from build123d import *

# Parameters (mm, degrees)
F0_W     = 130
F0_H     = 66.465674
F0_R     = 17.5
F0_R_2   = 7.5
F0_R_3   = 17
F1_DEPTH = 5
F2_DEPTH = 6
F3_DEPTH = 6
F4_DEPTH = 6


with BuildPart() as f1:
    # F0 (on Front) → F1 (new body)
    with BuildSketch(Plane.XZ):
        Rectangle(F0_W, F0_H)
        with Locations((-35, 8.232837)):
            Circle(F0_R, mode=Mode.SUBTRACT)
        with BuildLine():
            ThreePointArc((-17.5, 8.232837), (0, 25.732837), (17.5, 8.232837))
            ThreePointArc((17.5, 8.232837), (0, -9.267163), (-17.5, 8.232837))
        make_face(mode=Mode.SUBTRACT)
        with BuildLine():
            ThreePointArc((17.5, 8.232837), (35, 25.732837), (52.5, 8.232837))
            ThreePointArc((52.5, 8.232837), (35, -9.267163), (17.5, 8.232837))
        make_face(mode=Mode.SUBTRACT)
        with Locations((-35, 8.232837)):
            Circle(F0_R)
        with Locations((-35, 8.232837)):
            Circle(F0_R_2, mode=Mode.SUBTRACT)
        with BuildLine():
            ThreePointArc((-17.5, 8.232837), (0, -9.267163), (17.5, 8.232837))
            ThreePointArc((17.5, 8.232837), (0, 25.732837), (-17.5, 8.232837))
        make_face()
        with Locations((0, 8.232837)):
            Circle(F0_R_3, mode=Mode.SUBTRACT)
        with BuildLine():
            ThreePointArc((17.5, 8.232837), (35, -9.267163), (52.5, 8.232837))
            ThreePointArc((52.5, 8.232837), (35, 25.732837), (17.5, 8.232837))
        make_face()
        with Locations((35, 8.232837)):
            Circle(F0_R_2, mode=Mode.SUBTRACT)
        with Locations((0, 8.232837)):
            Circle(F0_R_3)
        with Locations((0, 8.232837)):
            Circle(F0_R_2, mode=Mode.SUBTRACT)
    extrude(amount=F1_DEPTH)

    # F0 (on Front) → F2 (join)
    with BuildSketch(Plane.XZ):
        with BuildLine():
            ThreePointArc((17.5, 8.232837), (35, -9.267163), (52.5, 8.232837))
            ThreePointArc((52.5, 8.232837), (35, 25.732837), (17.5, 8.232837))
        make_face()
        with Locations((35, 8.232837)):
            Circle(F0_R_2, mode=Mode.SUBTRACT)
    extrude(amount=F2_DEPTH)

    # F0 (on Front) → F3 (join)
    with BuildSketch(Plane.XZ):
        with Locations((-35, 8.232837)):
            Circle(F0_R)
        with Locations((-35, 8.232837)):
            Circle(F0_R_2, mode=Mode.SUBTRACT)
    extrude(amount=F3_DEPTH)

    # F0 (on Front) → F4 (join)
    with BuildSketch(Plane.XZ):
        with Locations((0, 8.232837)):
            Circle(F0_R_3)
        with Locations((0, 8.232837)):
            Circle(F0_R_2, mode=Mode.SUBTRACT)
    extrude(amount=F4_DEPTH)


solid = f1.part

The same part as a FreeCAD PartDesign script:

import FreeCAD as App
import Part
import Sketcher
from FreeCAD import Vector
Q = App.Units.Quantity

doc = App.newDocument("Part")
body = doc.addObject("PartDesign::Body", "Body")

sketch1 = doc.addObject("Sketcher::SketchObject", "Sketch")
body.addObject(sketch1)
sketch1.AttachmentSupport = (doc.XZ_Plane, [""])
sketch1.MapMode = "FlatFace"
sketch1.addGeometry(Part.LineSegment(Vector(-65, 33, 0), Vector(-65, -33, 0)), False)
sketch1.addGeometry(Part.LineSegment(Vector(-65, -33, 0), Vector(65, -33, 0)), False)
sketch1.addGeometry(Part.LineSegment(Vector(65, -33, 0), Vector(65, 33, 0)), False)
sketch1.addGeometry(Part.LineSegment(Vector(65, 33, 0), Vector(-65, 33, 0)), False)
sketch1.addGeometry(Part.Circle(Vector(-35, 8, 0), Vector(0, 0, 1), 8), False)
sketch1.addGeometry(Part.Circle(Vector(0, 8, 0), Vector(0, 0, 1), 8), False)
sketch1.addGeometry(Part.Circle(Vector(35, 8, 0), Vector(0, 0, 1), 8), False)
sketch1.addConstraint(Sketcher.Constraint("Coincident", 0, 2, 1, 1))
sketch1.addConstraint(Sketcher.Constraint("Coincident", 1, 2, 2, 1))
sketch1.addConstraint(Sketcher.Constraint("Coincident", 2, 2, 3, 1))
sketch1.addConstraint(Sketcher.Constraint("Coincident", 3, 2, 0, 1))
sketch1.addConstraint(Sketcher.Constraint("Vertical", 0))
sketch1.addConstraint(Sketcher.Constraint("Horizontal", 1))
sketch1.addConstraint(Sketcher.Constraint("Vertical", 2))
sketch1.addConstraint(Sketcher.Constraint("Horizontal", 3))
sketch1.addConstraint(Sketcher.Constraint("Equal", 4, 5))
sketch1.addConstraint(Sketcher.Constraint("Equal", 5, 6))
sketch1.addConstraint(Sketcher.Constraint("Symmetric", 0, 2, 2, 2, -1, 1))
sketch1.addConstraint(Sketcher.Constraint("Symmetric", 4, 3, 6, 3, -2))
sketch1.addConstraint(Sketcher.Constraint("PointOnObject", 5, 3, -2))
sketch1.addConstraint(Sketcher.Constraint("Horizontal", 4, 3, 5, 3))
sketch1.addConstraint(Sketcher.Constraint("Diameter", 4, Q("15 mm")))
sketch1.addConstraint(Sketcher.Constraint("DistanceX", 1, 1, 1, 2, Q("130 mm")))
sketch1.addConstraint(Sketcher.Constraint("DistanceX", 4, 3, -1, 1, Q("35 mm")))
sketch1.addConstraint(Sketcher.Constraint("DistanceY", 6, 3, 2, 2, Q("25 mm")))
sketch1.addConstraint(Sketcher.Constraint("DistanceY", 0, 2, 0, 1, Q("66.465674 mm")))
pad1 = doc.addObject("PartDesign::Pad", "Pad")
body.addObject(pad1)
pad1.Profile = sketch1
pad1.Length = 5

sketch2 = doc.addObject("Sketcher::SketchObject", "Sketch001")
body.addObject(sketch2)
sketch2.AttachmentSupport = (doc.XZ_Plane, [""])
sketch2.MapMode = "FlatFace"
sketch2.addGeometry(Part.Circle(Vector(35, 8, 0), Vector(0, 0, 1), 18), False)
sketch2.addGeometry(Part.Circle(Vector(35, 8, 0), Vector(0, 0, 1), 8), False)
sketch2.addConstraint(Sketcher.Constraint("Coincident", 1, 3, 0, 3))
sketch2.addConstraint(Sketcher.Constraint("Diameter", 0, Q("35 mm")))
sketch2.addConstraint(Sketcher.Constraint("Diameter", 1, Q("15 mm")))
sketch2.addConstraint(Sketcher.Constraint("DistanceX", -1, 1, 0, 3, Q("35 mm")))
sketch2.addConstraint(Sketcher.Constraint("DistanceY", -1, 1, 0, 3, Q("8.232837 mm")))
pad2 = doc.addObject("PartDesign::Pad", "Pad001")
body.addObject(pad2)
pad2.Profile = sketch2
pad2.Length = 6

sketch3 = doc.addObject("Sketcher::SketchObject", "Sketch002")
body.addObject(sketch3)
sketch3.AttachmentSupport = (doc.XZ_Plane, [""])
sketch3.MapMode = "FlatFace"
sketch3.addGeometry(Part.Circle(Vector(-35, 8, 0), Vector(0, 0, 1), 18), False)
sketch3.addGeometry(Part.Circle(Vector(-35, 8, 0), Vector(0, 0, 1), 8), False)
sketch3.addConstraint(Sketcher.Constraint("Coincident", 1, 3, 0, 3))
sketch3.addConstraint(Sketcher.Constraint("Diameter", 0, Q("35 mm")))
sketch3.addConstraint(Sketcher.Constraint("Diameter", 1, Q("15 mm")))
sketch3.addConstraint(Sketcher.Constraint("DistanceX", 0, 3, -1, 1, Q("35 mm")))
sketch3.addConstraint(Sketcher.Constraint("DistanceY", -1, 1, 0, 3, Q("8.232837 mm")))
pad3 = doc.addObject("PartDesign::Pad", "Pad002")
body.addObject(pad3)
pad3.Profile = sketch3
pad3.Length = 6

sketch4 = doc.addObject("Sketcher::SketchObject", "Sketch003")
body.addObject(sketch4)
sketch4.AttachmentSupport = (doc.XZ_Plane, [""])
sketch4.MapMode = "FlatFace"
sketch4.addGeometry(Part.Circle(Vector(0, 8, 0), Vector(0, 0, 1), 17), False)
sketch4.addGeometry(Part.Circle(Vector(0, 8, 0), Vector(0, 0, 1), 8), False)
sketch4.addConstraint(Sketcher.Constraint("Coincident", 1, 3, 0, 3))
sketch4.addConstraint(Sketcher.Constraint("PointOnObject", 0, 3, -2))
sketch4.addConstraint(Sketcher.Constraint("Diameter", 0, Q("34 mm")))
sketch4.addConstraint(Sketcher.Constraint("Diameter", 1, Q("15 mm")))
sketch4.addConstraint(Sketcher.Constraint("DistanceY", -1, 1, 0, 3, Q("8.232837 mm")))
pad4 = doc.addObject("PartDesign::Pad", "Pad003")
body.addObject(pad4)
pad4.Profile = sketch4
pad4.Length = 6

doc.recompute()
